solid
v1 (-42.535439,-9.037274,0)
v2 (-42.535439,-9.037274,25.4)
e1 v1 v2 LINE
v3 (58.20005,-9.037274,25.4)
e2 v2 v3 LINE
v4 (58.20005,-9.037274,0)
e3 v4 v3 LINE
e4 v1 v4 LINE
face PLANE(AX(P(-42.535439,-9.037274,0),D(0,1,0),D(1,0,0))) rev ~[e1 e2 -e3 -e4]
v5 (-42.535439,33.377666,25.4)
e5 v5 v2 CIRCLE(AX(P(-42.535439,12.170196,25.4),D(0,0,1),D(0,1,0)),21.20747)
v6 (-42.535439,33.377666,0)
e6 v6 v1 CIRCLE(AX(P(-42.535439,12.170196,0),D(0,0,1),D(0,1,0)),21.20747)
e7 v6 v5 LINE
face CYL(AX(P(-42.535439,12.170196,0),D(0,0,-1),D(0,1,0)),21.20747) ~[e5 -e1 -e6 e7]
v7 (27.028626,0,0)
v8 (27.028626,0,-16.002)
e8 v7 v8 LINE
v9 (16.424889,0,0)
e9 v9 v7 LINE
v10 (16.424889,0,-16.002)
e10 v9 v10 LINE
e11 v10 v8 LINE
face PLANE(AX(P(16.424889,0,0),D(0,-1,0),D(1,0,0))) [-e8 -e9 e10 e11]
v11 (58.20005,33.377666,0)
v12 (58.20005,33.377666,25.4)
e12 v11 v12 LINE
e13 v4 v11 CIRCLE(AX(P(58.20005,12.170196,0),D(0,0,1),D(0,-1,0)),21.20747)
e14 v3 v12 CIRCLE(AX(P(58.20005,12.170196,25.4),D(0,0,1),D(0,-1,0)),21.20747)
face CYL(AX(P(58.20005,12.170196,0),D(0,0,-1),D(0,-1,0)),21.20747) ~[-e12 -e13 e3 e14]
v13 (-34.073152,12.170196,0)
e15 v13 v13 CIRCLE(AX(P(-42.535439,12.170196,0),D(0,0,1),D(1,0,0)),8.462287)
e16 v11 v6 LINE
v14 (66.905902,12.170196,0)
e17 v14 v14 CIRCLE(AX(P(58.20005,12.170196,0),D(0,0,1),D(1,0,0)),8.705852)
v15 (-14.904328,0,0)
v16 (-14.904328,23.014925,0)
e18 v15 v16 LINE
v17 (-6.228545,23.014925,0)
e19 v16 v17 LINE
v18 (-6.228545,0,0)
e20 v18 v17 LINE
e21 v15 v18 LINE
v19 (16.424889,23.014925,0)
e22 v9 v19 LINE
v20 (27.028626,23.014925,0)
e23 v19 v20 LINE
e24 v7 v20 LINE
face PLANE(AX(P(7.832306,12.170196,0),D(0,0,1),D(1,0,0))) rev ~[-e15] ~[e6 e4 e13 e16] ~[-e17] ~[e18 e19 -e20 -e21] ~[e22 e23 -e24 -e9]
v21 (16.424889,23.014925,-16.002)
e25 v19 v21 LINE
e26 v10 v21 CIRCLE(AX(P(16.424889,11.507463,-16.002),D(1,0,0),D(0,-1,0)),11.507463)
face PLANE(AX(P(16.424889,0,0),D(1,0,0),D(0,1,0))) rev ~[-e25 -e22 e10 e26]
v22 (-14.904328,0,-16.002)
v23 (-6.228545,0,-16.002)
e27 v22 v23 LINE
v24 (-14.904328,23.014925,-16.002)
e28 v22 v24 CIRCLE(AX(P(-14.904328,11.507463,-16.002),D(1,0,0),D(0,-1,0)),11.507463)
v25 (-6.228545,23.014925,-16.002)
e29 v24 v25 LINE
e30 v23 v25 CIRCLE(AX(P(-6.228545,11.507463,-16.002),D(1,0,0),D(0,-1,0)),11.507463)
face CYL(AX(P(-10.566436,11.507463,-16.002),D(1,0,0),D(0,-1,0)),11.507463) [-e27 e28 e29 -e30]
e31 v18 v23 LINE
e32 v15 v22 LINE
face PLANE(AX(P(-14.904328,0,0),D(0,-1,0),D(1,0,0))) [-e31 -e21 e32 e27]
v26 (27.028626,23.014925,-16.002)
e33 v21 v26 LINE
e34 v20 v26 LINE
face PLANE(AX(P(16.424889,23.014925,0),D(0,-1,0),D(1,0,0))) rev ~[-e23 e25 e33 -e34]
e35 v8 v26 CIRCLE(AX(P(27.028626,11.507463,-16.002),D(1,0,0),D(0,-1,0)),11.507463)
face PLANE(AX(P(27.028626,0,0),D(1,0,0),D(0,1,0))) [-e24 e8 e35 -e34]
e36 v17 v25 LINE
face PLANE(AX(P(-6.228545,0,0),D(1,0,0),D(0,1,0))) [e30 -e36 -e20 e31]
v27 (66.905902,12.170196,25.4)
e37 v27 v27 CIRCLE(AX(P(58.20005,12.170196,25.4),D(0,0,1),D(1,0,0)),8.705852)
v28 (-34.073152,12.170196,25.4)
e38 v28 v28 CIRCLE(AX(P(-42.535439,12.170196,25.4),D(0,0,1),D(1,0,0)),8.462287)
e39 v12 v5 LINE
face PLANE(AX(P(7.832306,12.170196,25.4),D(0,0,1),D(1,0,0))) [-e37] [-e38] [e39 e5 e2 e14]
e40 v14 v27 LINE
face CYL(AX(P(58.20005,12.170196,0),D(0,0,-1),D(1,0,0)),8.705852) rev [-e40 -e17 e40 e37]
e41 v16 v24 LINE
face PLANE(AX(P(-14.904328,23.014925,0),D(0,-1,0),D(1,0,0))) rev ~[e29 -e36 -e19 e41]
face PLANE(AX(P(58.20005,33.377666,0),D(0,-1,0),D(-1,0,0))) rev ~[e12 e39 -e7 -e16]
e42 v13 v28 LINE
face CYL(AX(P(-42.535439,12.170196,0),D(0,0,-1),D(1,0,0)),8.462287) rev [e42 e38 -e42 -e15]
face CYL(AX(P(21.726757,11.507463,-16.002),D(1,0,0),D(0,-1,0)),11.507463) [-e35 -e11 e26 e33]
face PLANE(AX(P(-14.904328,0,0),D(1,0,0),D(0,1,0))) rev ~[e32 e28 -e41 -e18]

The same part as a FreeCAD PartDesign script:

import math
import FreeCAD as App
import Part
import Sketcher
from FreeCAD import Vector
Q = App.Units.Quantity


def add_polygon(sketch, points):
    """Adds a closed chain of lines whose ends are joined by coincident constraints."""
    first, n = sketch.GeometryCount, len(points)
    for a, b in zip(points, points[1:] + points[:1]):
        sketch.addGeometry(Part.LineSegment(App.Vector(*a, 0), App.Vector(*b, 0)), False)
    for i in range(n):
        sketch.addConstraint(Sketcher.Constraint("Coincident", first + i, 2, first + (i + 1) % n, 1))

doc = App.newDocument("Part")
body = doc.addObject("PartDesign::Body", "Body")

# Sketch on XY plane
sketch1 = doc.addObject("Sketcher::SketchObject", "Sketch")
body.addObject(sketch1)
sketch1.AttachmentSupport = (doc.XY_Plane, [""])
sketch1.MapMode = "FlatFace"
sketch1.addGeometry([
    Part.LineSegment(Vector(58, 33, 0), Vector(-43, 33, 0)),  # 0
    Part.ArcOfCircle(Part.Circle(Vector(-43, 12, 0), Vector(0, 0, 1), 21), math.radians(90), math.radians(270)),  # 1
    Part.LineSegment(Vector(-43, -9, 0), Vector(58, -9, 0)),  # 2
    Part.ArcOfCircle(Part.Circle(Vector(58, 12, 0), Vector(0, 0, 1), 21), math.radians(-90), math.radians(90)),  # 3
    Part.Circle(Vector(-43, 12, 0), Vector(0, 0, 1), 8),  # 4
    Part.Circle(Vector(58, 12, 0), Vector(0, 0, 1), 9),  # 5
], False)
sketch1.addConstraint([
    Sketcher.Constraint("Tangent", 0, 2, 1, 1),
    Sketcher.Constraint("Tangent", 1, 2, 2, 1),
    Sketcher.Constraint("Tangent", 2, 2, 3, 1),
    Sketcher.Constraint("Tangent", 3, 2, 0, 1),
    Sketcher.Constraint("Horizontal", 0),
    Sketcher.Constraint("Horizontal", 2),
    Sketcher.Constraint("Coincident", 4, 3, 1, 3),
    Sketcher.Constraint("Coincident", 5, 3, 3, 3),
    Sketcher.Constraint("Diameter", 5, Q("0.6855002 in")),
    Sketcher.Constraint("Radius", 1, 21.20747),
    Sketcher.Constraint("Diameter", 4, 16.924574),
    Sketcher.Constraint("DistanceX", 0, 2, 0, 1, 100.735489),
    Sketcher.Constraint("DistanceX", 1, 3, -1, 1, 42.535439),
    Sketcher.Constraint("DistanceY", -1, 1, 1, 3, 12.170196),
])
pad1 = doc.addObject("PartDesign::Pad", "Pad")
body.addObject(pad1)
pad1.Profile = sketch1
pad1.Length = Q("1 in")

# Sketch on XY plane
sketch2 = doc.addObject("Sketcher::SketchObject", "Sketch001")
body.addObject(sketch2)
sketch2.AttachmentSupport = (doc.XY_Plane, [""])
sketch2.MapMode = "FlatFace"
add_polygon(sketch2, [(-15, 23), (-15, 0), (-6, 0), (-6, 23)])  # lines 0-3
add_polygon(sketch2, [(16, 23), (16, 0), (27, 0), (27, 23)])  # lines 4-7
sketch2.addConstraint([
    Sketcher.Constraint("Vertical", 0),
    Sketcher.Constraint("Horizontal", 1),
    Sketcher.Constraint("Vertical", 2),
    Sketcher.Constraint("Horizontal", 3),
    Sketcher.Constraint("Vertical", 4),
    Sketcher.Constraint("Horizontal", 5),
    Sketcher.Constraint("Vertical", 6),
    Sketcher.Constraint("Horizontal", 7),
    Sketcher.Constraint("PointOnObject", 0, 2, -1),
    Sketcher.Constraint("PointOnObject", 4, 2, -1),
    Sketcher.Constraint("Horizontal", 3, 2, 6, 2),
    Sketcher.Constraint("DistanceX", 1, 1, 1, 2, 8.675783),
    Sketcher.Constraint("DistanceX", 5, 1, 5, 2, 10.603737),
    Sketcher.Constraint("DistanceY", 0, 2, 0, 1, 23.014925),
    Sketcher.Constraint("DistanceX", -1, 1, 4, 2, 16.424889),
    Sketcher.Constraint("DistanceX", 1, 2, 5, 2, 33.257171),
])
pad2 = doc.addObject("PartDesign::Pad", "Pad001")
body.addObject(pad2)
pad2.Profile = sketch2
pad2.Length = Q("0.63 in")
pad2.Reversed = True

# Sketch on XY plane
sketch3 = doc.addObject("Sketcher::SketchObject", "Sketch002")
body.addObject(sketch3)
sketch3.AttachmentSupport = (doc.XY_Plane, [""])
sketch3.MapMode = "FlatFace"
sketch3.AttachmentOffset = App.Placement(Vector(0, 0, -0.63 * 25.4), App.Rotation())
add_polygon(sketch3, [(-15, 0), (-15, 12), (-6, 12), (-6, 0)])  # lines 0-3
sketch3.addGeometry(Part.LineSegment(Vector(-15, 12, 0), Vector(-6, 12, 0)), True)  # axis
sketch3.addConstraint([
    Sketcher.Constraint("Vertical", 0),
    Sketcher.Constraint("Horizontal", 1),
    Sketcher.Constraint("Vertical", 2),
    Sketcher.Constraint("Horizontal", 3),
    Sketcher.Constraint("Horizontal", 4),
    Sketcher.Constraint("Coincident", 4, 1, 0, 2),
    Sketcher.Constraint("PointOnObject", 2, 2, -1),
    Sketcher.Constraint("Vertical", 2, 2, 4, 2),
    Sketcher.Constraint("DistanceX", 1, 1, 1, 2, 8.675783),
    Sketcher.Constraint("DistanceY", 0, 1, 0, 2, 11.507463),
    Sketcher.Constraint("DistanceX", 0, 2, -1, 1, 14.904328),
])
revolution = doc.addObject("PartDesign::Revolution", "Revolution")
body.addObject(revolution)
revolution.Profile = sketch3
revolution.ReferenceAxis = (sketch3, ["Axis0"])
revolution.Angle = 360

# Sketch on XY plane
sketch4 = doc.addObject("Sketcher::SketchObject", "Sketch003")
body.addObject(sketch4)
sketch4.AttachmentSupport = (doc.XY_Plane, [""])
sketch4.MapMode = "FlatFace"
sketch4.AttachmentOffset = App.Placement(Vector(0, 0, -0.63 * 25.4), App.Rotation())
add_polygon(sketch4, [(16, 0), (16, 12), (27, 12), (27, 0)])  # lines 0-3
sketch4.addGeometry(Part.LineSegment(Vector(16, 12, 0), Vector(27, 12, 0)), True)  # axis
sketch4.addConstraint([
    Sketcher.Constraint("Vertical", 0),
    Sketcher.Constraint("Horizontal", 1),
    Sketcher.Constraint("Vertical", 2),
    Sketcher.Constraint("Horizontal", 3),
    Sketcher.Constraint("Horizontal", 4),
    Sketcher.Constraint("Coincident", 4, 1, 0, 2),
    Sketcher.Constraint("PointOnObject", 2, 2, -1),
    Sketcher.Constraint("Vertical", 2, 2, 4, 2),
    Sketcher.Constraint("DistanceX", 1, 1, 1, 2, 10.603737),
    Sketcher.Constraint("DistanceY", 0, 1, 0, 2, 11.507463),
    Sketcher.Constraint("DistanceX", -1, 1, 0, 2, 16.424889),
])
revolution2 = doc.addObject("PartDesign::Revolution", "Revolution001")
body.addObject(revolution2)
revolution2.Profile = sketch4
revolution2.ReferenceAxis = (sketch4, ["Axis0"])
revolution2.Angle = 360

doc.recompute()
